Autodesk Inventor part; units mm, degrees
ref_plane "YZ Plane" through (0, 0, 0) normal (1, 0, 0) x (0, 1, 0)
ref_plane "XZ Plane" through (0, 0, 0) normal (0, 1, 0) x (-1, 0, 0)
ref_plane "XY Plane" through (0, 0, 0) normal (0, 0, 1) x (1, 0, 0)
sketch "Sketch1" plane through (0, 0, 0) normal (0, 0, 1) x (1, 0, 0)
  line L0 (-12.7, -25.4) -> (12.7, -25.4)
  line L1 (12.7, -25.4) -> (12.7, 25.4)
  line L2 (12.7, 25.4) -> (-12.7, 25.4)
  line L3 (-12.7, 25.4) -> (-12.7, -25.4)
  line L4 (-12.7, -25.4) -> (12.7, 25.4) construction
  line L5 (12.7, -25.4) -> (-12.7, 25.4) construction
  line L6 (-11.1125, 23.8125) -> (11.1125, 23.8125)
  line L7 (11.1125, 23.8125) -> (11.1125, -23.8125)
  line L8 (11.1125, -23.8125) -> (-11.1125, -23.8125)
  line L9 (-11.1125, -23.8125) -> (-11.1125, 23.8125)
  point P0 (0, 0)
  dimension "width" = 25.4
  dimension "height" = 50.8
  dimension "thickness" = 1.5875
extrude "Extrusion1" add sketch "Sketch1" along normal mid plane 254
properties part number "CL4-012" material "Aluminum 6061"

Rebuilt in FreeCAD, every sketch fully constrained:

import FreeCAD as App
import Part
import Sketcher
Q = App.Units.Quantity

doc = App.newDocument("Part")
body = doc.addObject("PartDesign::Body", "Body")

sketch1 = body.newObject("Sketcher::SketchObject", "Sketch")
sketch1.AttachmentSupport = (doc.getObject("XY_Plane"), [""])
sketch1.MapMode = "FlatFace"
sketch1.addGeometry(Part.LineSegment(App.Vector(-12.7, 25.4, 0), App.Vector(-12.7, -25.4, 0)), False)
sketch1.addGeometry(Part.LineSegment(App.Vector(-12.7, -25.4, 0), App.Vector(12.7, -25.4, 0)), False)
sketch1.addGeometry(Part.LineSegment(App.Vector(12.7, -25.4, 0), App.Vector(12.7, 25.4, 0)), False)
sketch1.addGeometry(Part.LineSegment(App.Vector(12.7, 25.4, 0), App.Vector(-12.7, 25.4, 0)), False)
sketch1.addGeometry(Part.LineSegment(App.Vector(-11.1125, -23.8125, 0), App.Vector(-11.1125, 23.8125, 0)), False)
sketch1.addGeometry(Part.LineSegment(App.Vector(-11.1125, 23.8125, 0), App.Vector(11.1125, 23.8125, 0)), False)
sketch1.addGeometry(Part.LineSegment(App.Vector(11.1125, 23.8125, 0), App.Vector(11.1125, -23.8125, 0)), False)
sketch1.addGeometry(Part.LineSegment(App.Vector(11.1125, -23.8125, 0), App.Vector(-11.1125, -23.8125, 0)), False)
sketch1.addConstraint(Sketcher.Constraint("Coincident", 0, 2, 1, 1))
sketch1.addConstraint(Sketcher.Constraint("Coincident", 1, 2, 2, 1))
sketch1.addConstraint(Sketcher.Constraint("Coincident", 2, 2, 3, 1))
sketch1.addConstraint(Sketcher.Constraint("Coincident", 3, 2, 0, 1))
sketch1.addConstraint(Sketcher.Constraint("Coincident", 4, 2, 5, 1))
sketch1.addConstraint(Sketcher.Constraint("Coincident", 5, 2, 6, 1))
sketch1.addConstraint(Sketcher.Constraint("Coincident", 6, 2, 7, 1))
sketch1.addConstraint(Sketcher.Constraint("Coincident", 7, 2, 4, 1))
sketch1.addConstraint(Sketcher.Constraint("Vertical", 0))
sketch1.addConstraint(Sketcher.Constraint("Horizontal", 1))
sketch1.addConstraint(Sketcher.Constraint("Vertical", 2))
sketch1.addConstraint(Sketcher.Constraint("Horizontal", 3))
sketch1.addConstraint(Sketcher.Constraint("Vertical", 4))
sketch1.addConstraint(Sketcher.Constraint("Horizontal", 5))
sketch1.addConstraint(Sketcher.Constraint("Vertical", 6))
sketch1.addConstraint(Sketcher.Constraint("Horizontal", 7))
sketch1.addConstraint(Sketcher.Constraint("Symmetric", 0, 2, 2, 2, -1, 1))
sketch1.addConstraint(Sketcher.Constraint("Symmetric", 4, 2, 6, 2, -1, 1))
sketch1.addConstraint(Sketcher.Constraint("DistanceX", 1, 1, 1, 2, Q("1 in")))
sketch1.addConstraint(Sketcher.Constraint("DistanceY", 0, 2, 0, 1, Q("2 in")))
sketch1.addConstraint(Sketcher.Constraint("DistanceX", 3, 2, 4, 2, Q("0.0625 in")))
sketch1.addConstraint(Sketcher.Constraint("DistanceY", 4, 2, 3, 2, Q("0.0625 in")))
pad1 = body.newObject("PartDesign::Pad", "Pad")
pad1.Profile = sketch1
pad1.Length = Q("10 in")
pad1.Midplane = True

doc.recompute()
